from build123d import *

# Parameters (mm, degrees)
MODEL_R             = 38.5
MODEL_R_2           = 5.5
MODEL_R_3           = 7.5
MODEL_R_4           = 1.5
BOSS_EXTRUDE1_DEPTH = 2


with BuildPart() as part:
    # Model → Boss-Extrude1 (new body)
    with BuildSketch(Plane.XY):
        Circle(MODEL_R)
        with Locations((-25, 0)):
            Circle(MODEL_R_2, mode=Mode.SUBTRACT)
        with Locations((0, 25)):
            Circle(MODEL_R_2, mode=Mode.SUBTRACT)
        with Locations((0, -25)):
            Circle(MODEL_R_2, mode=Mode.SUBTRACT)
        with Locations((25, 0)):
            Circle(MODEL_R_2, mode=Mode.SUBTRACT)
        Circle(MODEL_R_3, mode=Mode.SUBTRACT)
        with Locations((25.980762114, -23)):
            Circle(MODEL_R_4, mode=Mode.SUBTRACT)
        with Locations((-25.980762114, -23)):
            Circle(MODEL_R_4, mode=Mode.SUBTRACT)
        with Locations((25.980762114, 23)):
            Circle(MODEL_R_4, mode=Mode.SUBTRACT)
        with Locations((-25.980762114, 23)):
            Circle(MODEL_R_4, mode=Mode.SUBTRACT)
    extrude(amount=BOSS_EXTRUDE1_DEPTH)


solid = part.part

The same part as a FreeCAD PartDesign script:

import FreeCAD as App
import Part
import Sketcher
from FreeCAD import Vector

doc = App.newDocument("Part")
body = doc.addObject("PartDesign::Body", "Body")

# Sketch on XY plane
sketch1 = doc.addObject("Sketcher::SketchObject", "Sketch")
body.addObject(sketch1)
sketch1.AttachmentSupport = (doc.XY_Plane, [""])
sketch1.MapMode = "FlatFace"
sketch1.addGeometry([
    Part.Circle(Vector(0, 0, 0), Vector(0, 0, 1), 38.5),  # 0
    Part.Circle(Vector(-26, -23, 0), Vector(0, 0, 1), 1.5),  # 1
    Part.Circle(Vector(0, -25, 0), Vector(0, 0, 1), 5.5),  # 2
    Part.Circle(Vector(26, -23, 0), Vector(0, 0, 1), 1.5),  # 3
    Part.Circle(Vector(-25, 0, 0), Vector(0, 0, 1), 5.5),  # 4
    Part.Circle(Vector(-26, 23, 0), Vector(0, 0, 1), 1.5),  # 5
    Part.Circle(Vector(0, 0, 0), Vector(0, 0, 1), 7.5),  # 6
    Part.Circle(Vector(25, 0, 0), Vector(0, 0, 1), 5.5),  # 7
    Part.Circle(Vector(0, 25, 0), Vector(0, 0, 1), 5.5),  # 8
    Part.Circle(Vector(26, 23, 0), Vector(0, 0, 1), 1.5),  # 9
], False)
sketch1.addConstraint([
    Sketcher.Constraint("Coincident", 0, 3, -1, 1),
    Sketcher.Constraint("Coincident", 6, 3, -1, 1),
    Sketcher.Constraint("Equal", 1, 3),
    Sketcher.Constraint("Equal", 2, 4),
    Sketcher.Constraint("Equal", 3, 5),
    Sketcher.Constraint("Equal", 4, 7),
    Sketcher.Constraint("Equal", 7, 8),
    Sketcher.Constraint("Equal", 5, 9),
    Sketcher.Constraint("Symmetric", 3, 3, 5, 3, -1, 1),
    Sketcher.Constraint("Symmetric", 4, 3, 7, 3, -1, 1),
    Sketcher.Constraint("Symmetric", 2, 3, 8, 3, -1, 1),
    Sketcher.Constraint("Symmetric", 1, 3, 9, 3, -1, 1),
    Sketcher.Constraint("Symmetric", 1, 3, 3, 3, -2),
    Sketcher.Constraint("PointOnObject", 2, 3, -2),
    Sketcher.Constraint("PointOnObject", 4, 3, -1),
    Sketcher.Constraint("Diameter", 0, 77.0),
    Sketcher.Constraint("Diameter", 1, 3.0),
    Sketcher.Constraint("Diameter", 2, 11.0),
    Sketcher.Constraint("Diameter", 6, 15.0),
    Sketcher.Constraint("DistanceY", 1, 3, -1, 1, 23.0),
    Sketcher.Constraint("DistanceY", 2, 3, -1, 1, 25.0),
    Sketcher.Constraint("DistanceX", 4, 3, -1, 1, 25.0),
    Sketcher.Constraint("DistanceX", 1, 3, -1, 1, 25.980762),
])
pad1 = doc.addObject("PartDesign::Pad", "Pad")
body.addObject(pad1)
pad1.Profile = sketch1
pad1.Length = 2

doc.recompute()
